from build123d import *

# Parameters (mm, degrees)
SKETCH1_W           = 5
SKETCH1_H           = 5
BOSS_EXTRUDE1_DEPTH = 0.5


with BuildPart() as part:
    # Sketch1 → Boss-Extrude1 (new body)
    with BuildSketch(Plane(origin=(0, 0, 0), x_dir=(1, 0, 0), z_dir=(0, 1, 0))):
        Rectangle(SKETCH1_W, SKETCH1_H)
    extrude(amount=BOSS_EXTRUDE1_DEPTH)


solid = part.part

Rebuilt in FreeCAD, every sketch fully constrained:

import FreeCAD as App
import Part
import Sketcher
from FreeCAD import Vector

doc = App.newDocument("Part")
body = doc.addObject("PartDesign::Body", "Body")

sketch1 = body.newObject("Sketcher::SketchObject", "Sketch")
sketch1.AttachmentSupport = (doc.getObject("XZ_Plane"), [""])
sketch1.MapMode = "FlatFace"
sketch1.addGeometry([
    Part.LineSegment(Vector(-2, -2, 0), Vector(-2, 2, 0)),
    Part.LineSegment(Vector(-2, 2, 0), Vector(2, 2, 0)),
    Part.LineSegment(Vector(2, 2, 0), Vector(2, -2, 0)),
    Part.LineSegment(Vector(2, -2, 0), Vector(-2, -2, 0)),
], False)
sketch1.addConstraint([
    Sketcher.Constraint("Coincident", 0, 2, 1, 1),
    Sketcher.Constraint("Coincident", 1, 2, 2, 1),
    Sketcher.Constraint("Coincident", 2, 2, 3, 1),
    Sketcher.Constraint("Coincident", 3, 2, 0, 1),
    Sketcher.Constraint("Vertical", 0),
    Sketcher.Constraint("Horizontal", 1),
    Sketcher.Constraint("Vertical", 2),
    Sketcher.Constraint("Horizontal", 3),
    Sketcher.Constraint("Symmetric", 0, 2, 2, 2, -1, 1),
    Sketcher.Constraint("Equal", 3, 0),
    Sketcher.Constraint("DistanceX", 1, 1, 1, 2, 5.0),
])
pad1 = body.newObject("PartDesign::Pad", "Pad")
pad1.Profile = sketch1
pad1.Length = 0.5
pad1.Reversed = True

doc.recompute()
